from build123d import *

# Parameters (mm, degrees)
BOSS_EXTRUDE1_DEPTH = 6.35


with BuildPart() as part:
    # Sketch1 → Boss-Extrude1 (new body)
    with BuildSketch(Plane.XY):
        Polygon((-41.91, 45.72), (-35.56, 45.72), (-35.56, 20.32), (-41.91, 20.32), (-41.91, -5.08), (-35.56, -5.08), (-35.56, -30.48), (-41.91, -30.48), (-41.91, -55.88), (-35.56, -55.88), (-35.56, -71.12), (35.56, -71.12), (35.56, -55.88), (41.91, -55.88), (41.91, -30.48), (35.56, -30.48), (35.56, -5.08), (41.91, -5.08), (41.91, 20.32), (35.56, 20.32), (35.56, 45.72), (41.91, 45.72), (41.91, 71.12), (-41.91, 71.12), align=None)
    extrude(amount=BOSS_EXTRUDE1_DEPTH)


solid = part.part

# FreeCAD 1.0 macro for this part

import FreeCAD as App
import Part
import Sketcher

V = App.Vector
Q = App.Units.Quantity

doc = App.newDocument("Part")
body = doc.addObject("PartDesign::Body", "Body")

# Sketch on XY plane
sketch1 = doc.addObject("Sketcher::SketchObject", "Sketch")
body.addObject(sketch1)
sketch1.AttachmentSupport = (doc.XY_Plane, [""])
sketch1.MapMode = "FlatFace"
sketch1.addGeometry([
    Part.LineSegment(V(-42, 46, 0), V(-36, 46, 0)),  # 0
    Part.LineSegment(V(-36, 46, 0), V(-36, 20, 0)),  # 1
    Part.LineSegment(V(-36, 20, 0), V(-42, 20, 0)),  # 2
    Part.LineSegment(V(-42, 20, 0), V(-42, -5, 0)),  # 3
    Part.LineSegment(V(-42, -5, 0), V(-36, -5, 0)),  # 4
    Part.LineSegment(V(-36, -5, 0), V(-36, -30, 0)),  # 5
    Part.LineSegment(V(-36, -30, 0), V(-42, -30, 0)),  # 6
    Part.LineSegment(V(-42, -30, 0), V(-42, -56, 0)),  # 7
    Part.LineSegment(V(-42, -56, 0), V(-36, -56, 0)),  # 8
    Part.LineSegment(V(-36, -56, 0), V(-36, -71, 0)),  # 9
    Part.LineSegment(V(-36, -71, 0), V(36, -71, 0)),  # 10
    Part.LineSegment(V(36, -71, 0), V(36, -56, 0)),  # 11
    Part.LineSegment(V(36, -56, 0), V(42, -56, 0)),  # 12
    Part.LineSegment(V(42, -56, 0), V(42, -30, 0)),  # 13
    Part.LineSegment(V(42, -30, 0), V(36, -30, 0)),  # 14
    Part.LineSegment(V(36, -30, 0), V(36, -5, 0)),  # 15
    Part.LineSegment(V(36, -5, 0), V(42, -5, 0)),  # 16
    Part.LineSegment(V(42, -5, 0), V(42, 20, 0)),  # 17
    Part.LineSegment(V(42, 20, 0), V(36, 20, 0)),  # 18
    Part.LineSegment(V(36, 20, 0), V(36, 46, 0)),  # 19
    Part.LineSegment(V(36, 46, 0), V(42, 46, 0)),  # 20
    Part.LineSegment(V(42, 46, 0), V(42, 71, 0)),  # 21
    Part.LineSegment(V(42, 71, 0), V(-42, 71, 0)),  # 22
    Part.LineSegment(V(-42, 71, 0), V(-42, 46, 0)),  # 23
], False)
sketch1.addConstraint([
    Sketcher.Constraint("Coincident", 0, 2, 1, 1),
    Sketcher.Constraint("Coincident", 1, 2, 2, 1),
    Sketcher.Constraint("Coincident", 2, 2, 3, 1),
    Sketcher.Constraint("Coincident", 3, 2, 4, 1),
    Sketcher.Constraint("Coincident", 4, 2, 5, 1),
    Sketcher.Constraint("Coincident", 5, 2, 6, 1),
    Sketcher.Constraint("Coincident", 6, 2, 7, 1),
    Sketcher.Constraint("Coincident", 7, 2, 8, 1),
    Sketcher.Constraint("Coincident", 8, 2, 9, 1),
    Sketcher.Constraint("Coincident", 9, 2, 10, 1),
    Sketcher.Constraint("Coincident", 10, 2, 11, 1),
    Sketcher.Constraint("Coincident", 11, 2, 12, 1),
    Sketcher.Constraint("Coincident", 12, 2, 13, 1),
    Sketcher.Constraint("Coincident", 13, 2, 14, 1),
    Sketcher.Constraint("Coincident", 14, 2, 15, 1),
    Sketcher.Constraint("Coincident", 15, 2, 16, 1),
    Sketcher.Constraint("Coincident", 16, 2, 17, 1),
    Sketcher.Constraint("Coincident", 17, 2, 18, 1),
    Sketcher.Constraint("Coincident", 18, 2, 19, 1),
    Sketcher.Constraint("Coincident", 19, 2, 20, 1),
    Sketcher.Constraint("Coincident", 20, 2, 21, 1),
    Sketcher.Constraint("Coincident", 21, 2, 22, 1),
    Sketcher.Constraint("Coincident", 22, 2, 23, 1),
    Sketcher.Constraint("Coincident", 23, 2, 0, 1),
    Sketcher.Constraint("Horizontal", 0),
    Sketcher.Constraint("Vertical", 1),
    Sketcher.Constraint("Horizontal", 2),
    Sketcher.Constraint("Vertical", 3),
    Sketcher.Constraint("Horizontal", 4),
    Sketcher.Constraint("Vertical", 5),
    Sketcher.Constraint("Horizontal", 6),
    Sketcher.Constraint("Vertical", 7),
    Sketcher.Constraint("Horizontal", 8),
    Sketcher.Constraint("Vertical", 9),
    Sketcher.Constraint("Horizontal", 10),
    Sketcher.Constraint("Vertical", 11),
    Sketcher.Constraint("Horizontal", 12),
    Sketcher.Constraint("Vertical", 13),
    Sketcher.Constraint("Horizontal", 14),
    Sketcher.Constraint("Vertical", 15),
    Sketcher.Constraint("Horizontal", 16),
    Sketcher.Constraint("Vertical", 17),
    Sketcher.Constraint("Horizontal", 18),
    Sketcher.Constraint("Vertical", 19),
    Sketcher.Constraint("Horizontal", 20),
    Sketcher.Constraint("Vertical", 21),
    Sketcher.Constraint("Horizontal", 22),
    Sketcher.Constraint("Vertical", 23),
    Sketcher.Constraint("Symmetric", 8, 2, 11, 2, -2),
    Sketcher.Constraint("Symmetric", 6, 2, 13, 2, -2),
    Sketcher.Constraint("Symmetric", 4, 2, 15, 2, -2),
    Sketcher.Constraint("Symmetric", 2, 2, 17, 2, -2),
    Sketcher.Constraint("Symmetric", 0, 2, 19, 2, -2),
    Sketcher.Constraint("Vertical", 1, 2, 4, 2),
    Sketcher.Constraint("Vertical", 3, 2, 6, 2),
    Sketcher.Constraint("Vertical", 5, 2, 8, 2),
    Sketcher.Constraint("Vertical", 17, 2, 20, 2),
    Sketcher.Constraint("Vertical", 7, 2, 22, 2),
    Sketcher.Constraint("Equal", 1, 3),
    Sketcher.Constraint("Equal", 3, 5),
    Sketcher.Constraint("Equal", 5, 7),
    Sketcher.Constraint("Equal", 19, 21),
    Sketcher.Constraint("DistanceY", 1, 2, 1, 1, Q("1 in")),
    Sketcher.Constraint("DistanceX", 10, 1, 10, 2, Q("2.8 in")),
    Sketcher.Constraint("DistanceX", 22, 2, 22, 1, Q("3.3 in")),
    Sketcher.Constraint("DistanceY", 9, 2, 9, 1, Q("0.6 in")),
    Sketcher.Constraint("DistanceY", -1, 1, 0, 2, Q("1.8 in")),
])
pad1 = doc.addObject("PartDesign::Pad", "Pad")
body.addObject(pad1)
pad1.Profile = sketch1
pad1.Length = Q("0.25 in")

doc.recompute()
